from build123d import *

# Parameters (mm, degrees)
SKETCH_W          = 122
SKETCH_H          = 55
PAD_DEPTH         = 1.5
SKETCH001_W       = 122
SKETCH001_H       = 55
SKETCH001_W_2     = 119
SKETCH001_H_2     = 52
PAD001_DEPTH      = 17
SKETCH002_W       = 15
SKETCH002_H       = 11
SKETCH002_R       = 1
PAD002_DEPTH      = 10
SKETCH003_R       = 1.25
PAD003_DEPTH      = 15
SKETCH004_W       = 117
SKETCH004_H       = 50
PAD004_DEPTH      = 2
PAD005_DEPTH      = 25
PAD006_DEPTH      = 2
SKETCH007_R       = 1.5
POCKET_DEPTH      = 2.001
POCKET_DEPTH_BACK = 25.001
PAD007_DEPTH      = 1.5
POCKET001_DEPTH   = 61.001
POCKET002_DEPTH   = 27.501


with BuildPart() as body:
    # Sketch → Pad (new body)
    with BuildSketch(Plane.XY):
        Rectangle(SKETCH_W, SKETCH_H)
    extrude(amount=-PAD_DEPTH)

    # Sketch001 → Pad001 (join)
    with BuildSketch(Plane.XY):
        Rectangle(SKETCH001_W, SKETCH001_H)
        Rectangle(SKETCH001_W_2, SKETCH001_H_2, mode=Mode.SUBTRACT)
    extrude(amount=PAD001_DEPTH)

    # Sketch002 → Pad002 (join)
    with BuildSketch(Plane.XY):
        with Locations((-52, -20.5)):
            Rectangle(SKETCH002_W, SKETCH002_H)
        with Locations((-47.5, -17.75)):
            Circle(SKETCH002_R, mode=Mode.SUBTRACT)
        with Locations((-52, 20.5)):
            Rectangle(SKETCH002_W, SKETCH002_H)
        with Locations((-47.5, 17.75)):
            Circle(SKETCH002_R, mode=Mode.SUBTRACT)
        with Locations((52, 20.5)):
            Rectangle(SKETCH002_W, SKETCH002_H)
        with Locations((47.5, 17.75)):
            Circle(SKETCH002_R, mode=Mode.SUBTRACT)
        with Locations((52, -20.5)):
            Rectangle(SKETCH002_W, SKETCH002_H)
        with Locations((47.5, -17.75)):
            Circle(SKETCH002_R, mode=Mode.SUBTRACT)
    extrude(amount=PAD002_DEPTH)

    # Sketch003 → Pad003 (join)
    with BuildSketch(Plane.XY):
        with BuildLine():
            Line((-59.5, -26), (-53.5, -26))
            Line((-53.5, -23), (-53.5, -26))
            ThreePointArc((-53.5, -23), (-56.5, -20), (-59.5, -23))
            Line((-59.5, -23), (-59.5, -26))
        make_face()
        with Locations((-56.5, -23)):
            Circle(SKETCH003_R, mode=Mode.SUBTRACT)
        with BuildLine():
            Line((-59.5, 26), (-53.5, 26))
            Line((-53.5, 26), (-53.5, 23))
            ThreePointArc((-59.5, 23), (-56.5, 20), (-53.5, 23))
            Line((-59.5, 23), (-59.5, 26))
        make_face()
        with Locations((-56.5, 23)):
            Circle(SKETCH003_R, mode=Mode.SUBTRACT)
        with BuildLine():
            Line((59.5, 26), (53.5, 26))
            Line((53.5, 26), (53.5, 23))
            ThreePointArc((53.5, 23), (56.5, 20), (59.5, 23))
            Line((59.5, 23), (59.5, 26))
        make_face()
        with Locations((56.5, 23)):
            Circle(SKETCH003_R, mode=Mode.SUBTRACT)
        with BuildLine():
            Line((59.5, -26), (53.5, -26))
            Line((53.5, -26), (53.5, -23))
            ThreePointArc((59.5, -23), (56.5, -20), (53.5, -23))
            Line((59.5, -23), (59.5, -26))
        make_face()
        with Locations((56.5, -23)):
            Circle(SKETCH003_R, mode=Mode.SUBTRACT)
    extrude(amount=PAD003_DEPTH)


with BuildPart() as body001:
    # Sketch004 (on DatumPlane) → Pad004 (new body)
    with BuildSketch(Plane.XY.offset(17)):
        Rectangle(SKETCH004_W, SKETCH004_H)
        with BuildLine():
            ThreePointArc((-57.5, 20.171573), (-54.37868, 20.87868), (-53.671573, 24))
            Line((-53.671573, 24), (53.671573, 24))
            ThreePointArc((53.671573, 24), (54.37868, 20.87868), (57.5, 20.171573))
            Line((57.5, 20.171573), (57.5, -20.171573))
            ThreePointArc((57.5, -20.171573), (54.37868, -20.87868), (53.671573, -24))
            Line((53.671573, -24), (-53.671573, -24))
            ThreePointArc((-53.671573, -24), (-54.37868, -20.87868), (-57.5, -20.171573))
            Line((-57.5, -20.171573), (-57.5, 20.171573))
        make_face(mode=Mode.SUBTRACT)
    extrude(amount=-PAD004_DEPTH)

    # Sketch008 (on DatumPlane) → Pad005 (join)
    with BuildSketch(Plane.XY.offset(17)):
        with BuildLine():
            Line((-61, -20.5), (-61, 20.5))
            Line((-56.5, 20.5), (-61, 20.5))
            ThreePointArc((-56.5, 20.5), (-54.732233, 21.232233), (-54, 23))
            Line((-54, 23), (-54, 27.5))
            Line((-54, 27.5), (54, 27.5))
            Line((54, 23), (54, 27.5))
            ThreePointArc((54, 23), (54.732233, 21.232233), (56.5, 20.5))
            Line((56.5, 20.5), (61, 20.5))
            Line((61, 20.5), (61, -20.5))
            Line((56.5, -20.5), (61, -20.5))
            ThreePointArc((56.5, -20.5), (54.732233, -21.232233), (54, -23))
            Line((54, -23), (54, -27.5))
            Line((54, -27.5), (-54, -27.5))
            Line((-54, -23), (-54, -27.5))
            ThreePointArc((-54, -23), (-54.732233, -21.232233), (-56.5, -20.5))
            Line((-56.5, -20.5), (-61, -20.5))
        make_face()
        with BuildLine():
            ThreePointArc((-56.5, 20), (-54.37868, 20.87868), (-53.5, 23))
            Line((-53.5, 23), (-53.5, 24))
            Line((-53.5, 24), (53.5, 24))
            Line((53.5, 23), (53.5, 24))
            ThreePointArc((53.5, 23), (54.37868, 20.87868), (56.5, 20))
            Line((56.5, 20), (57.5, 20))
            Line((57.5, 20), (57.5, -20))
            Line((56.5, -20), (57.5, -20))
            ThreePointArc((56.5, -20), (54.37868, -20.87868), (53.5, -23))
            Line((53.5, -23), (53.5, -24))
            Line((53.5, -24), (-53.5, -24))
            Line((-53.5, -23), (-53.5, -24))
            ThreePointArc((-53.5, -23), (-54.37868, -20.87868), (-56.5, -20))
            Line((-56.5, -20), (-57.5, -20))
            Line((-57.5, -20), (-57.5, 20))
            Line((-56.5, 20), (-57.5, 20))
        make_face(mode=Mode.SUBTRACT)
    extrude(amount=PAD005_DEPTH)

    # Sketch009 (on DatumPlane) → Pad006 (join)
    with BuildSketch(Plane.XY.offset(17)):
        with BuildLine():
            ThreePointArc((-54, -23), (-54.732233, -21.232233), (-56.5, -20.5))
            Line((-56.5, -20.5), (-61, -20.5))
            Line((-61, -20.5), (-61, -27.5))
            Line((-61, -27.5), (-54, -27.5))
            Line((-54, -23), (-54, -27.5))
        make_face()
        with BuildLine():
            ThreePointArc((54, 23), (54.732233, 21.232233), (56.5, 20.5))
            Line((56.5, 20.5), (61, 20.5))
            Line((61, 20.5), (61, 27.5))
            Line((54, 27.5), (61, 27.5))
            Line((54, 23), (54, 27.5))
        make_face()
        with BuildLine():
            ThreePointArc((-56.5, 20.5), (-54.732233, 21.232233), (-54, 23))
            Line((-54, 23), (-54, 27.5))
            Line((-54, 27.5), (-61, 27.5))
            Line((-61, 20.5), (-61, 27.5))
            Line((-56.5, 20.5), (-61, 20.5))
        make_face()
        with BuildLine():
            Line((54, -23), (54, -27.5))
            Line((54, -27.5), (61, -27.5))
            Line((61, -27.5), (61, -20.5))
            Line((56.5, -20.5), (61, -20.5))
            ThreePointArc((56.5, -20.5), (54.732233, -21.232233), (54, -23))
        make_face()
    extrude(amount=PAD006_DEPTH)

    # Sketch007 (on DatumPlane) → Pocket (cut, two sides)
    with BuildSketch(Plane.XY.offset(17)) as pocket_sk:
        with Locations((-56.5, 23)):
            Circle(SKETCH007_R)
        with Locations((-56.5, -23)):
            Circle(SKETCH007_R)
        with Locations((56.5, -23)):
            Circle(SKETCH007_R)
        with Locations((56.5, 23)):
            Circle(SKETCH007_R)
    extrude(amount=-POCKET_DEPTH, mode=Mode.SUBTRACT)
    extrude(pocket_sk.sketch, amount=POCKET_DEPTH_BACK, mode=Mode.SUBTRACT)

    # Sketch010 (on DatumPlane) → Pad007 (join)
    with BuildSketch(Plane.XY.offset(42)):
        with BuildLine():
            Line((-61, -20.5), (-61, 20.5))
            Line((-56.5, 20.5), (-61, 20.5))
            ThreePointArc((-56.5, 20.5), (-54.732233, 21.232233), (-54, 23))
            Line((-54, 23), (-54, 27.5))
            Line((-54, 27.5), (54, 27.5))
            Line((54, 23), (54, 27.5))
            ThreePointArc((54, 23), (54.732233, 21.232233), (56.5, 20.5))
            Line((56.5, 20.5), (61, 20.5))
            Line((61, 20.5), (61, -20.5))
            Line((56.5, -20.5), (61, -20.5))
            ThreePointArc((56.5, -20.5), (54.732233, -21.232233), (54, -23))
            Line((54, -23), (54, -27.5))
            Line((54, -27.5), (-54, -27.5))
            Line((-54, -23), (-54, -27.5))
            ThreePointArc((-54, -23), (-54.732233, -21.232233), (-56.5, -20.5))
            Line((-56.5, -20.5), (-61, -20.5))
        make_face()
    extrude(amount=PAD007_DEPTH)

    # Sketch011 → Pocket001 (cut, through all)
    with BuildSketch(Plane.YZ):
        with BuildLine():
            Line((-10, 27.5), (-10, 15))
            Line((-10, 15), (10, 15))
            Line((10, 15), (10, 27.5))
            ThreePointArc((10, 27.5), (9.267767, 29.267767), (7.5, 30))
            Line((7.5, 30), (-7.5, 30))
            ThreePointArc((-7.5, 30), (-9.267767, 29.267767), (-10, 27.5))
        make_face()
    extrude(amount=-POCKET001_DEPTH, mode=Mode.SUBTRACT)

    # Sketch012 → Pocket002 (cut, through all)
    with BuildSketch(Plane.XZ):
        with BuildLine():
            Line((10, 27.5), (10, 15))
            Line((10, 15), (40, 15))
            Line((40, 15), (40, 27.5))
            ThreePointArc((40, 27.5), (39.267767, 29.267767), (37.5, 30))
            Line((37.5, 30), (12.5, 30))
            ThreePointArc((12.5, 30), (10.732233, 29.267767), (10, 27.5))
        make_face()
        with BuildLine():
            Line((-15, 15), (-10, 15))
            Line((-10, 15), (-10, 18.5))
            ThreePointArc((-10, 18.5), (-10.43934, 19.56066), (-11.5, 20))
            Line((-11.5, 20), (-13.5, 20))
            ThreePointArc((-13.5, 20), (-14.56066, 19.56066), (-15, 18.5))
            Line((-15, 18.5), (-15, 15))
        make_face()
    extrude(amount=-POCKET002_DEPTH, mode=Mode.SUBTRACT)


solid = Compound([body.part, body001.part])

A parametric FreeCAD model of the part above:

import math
import FreeCAD as App
import Part
import Sketcher
from FreeCAD import Vector

doc = App.newDocument("Part")
body = doc.addObject("PartDesign::Body", "Body")

# Sketch on XY plane
sketch1 = body.newObject("Sketcher::SketchObject", "Sketch")
sketch1.AttachmentSupport = (doc.getObject("XY_Plane"), [""])
sketch1.MapMode = "FlatFace"
sketch1.addGeometry([
    Part.LineSegment(Vector(-61, 27.5, 0), Vector(-61, -27.5, 0)),
    Part.LineSegment(Vector(-61, -27.5, 0), Vector(61, -27.5, 0)),
    Part.LineSegment(Vector(61, -27.5, 0), Vector(61, 27.5, 0)),
    Part.LineSegment(Vector(61, 27.5, 0), Vector(-61, 27.5, 0)),
], False)
sketch1.addConstraint([
    Sketcher.Constraint("Coincident", 0, 2, 1, 1),
    Sketcher.Constraint("Coincident", 1, 2, 2, 1),
    Sketcher.Constraint("Coincident", 2, 2, 3, 1),
    Sketcher.Constraint("Coincident", 3, 2, 0, 1),
    Sketcher.Constraint("Vertical", 0),
    Sketcher.Constraint("Horizontal", 1),
    Sketcher.Constraint("Vertical", 2),
    Sketcher.Constraint("Horizontal", 3),
    Sketcher.Constraint("Symmetric", 0, 2, 2, 2, -1, 1),
    Sketcher.Constraint("DistanceX", 1, 1, 1, 2, 122.0),
    Sketcher.Constraint("DistanceY", 0, 2, 0, 1, 55.0),
])
pad1 = body.newObject("PartDesign::Pad", "Pad")
pad1.Profile = sketch1
pad1.Length = 1.5
pad1.Reversed = True

# Sketch on XY plane
sketch2 = body.newObject("Sketcher::SketchObject", "Sketch001")
sketch2.AttachmentSupport = (doc.getObject("XY_Plane"), [""])
sketch2.MapMode = "FlatFace"
sketch2.addGeometry([
    Part.LineSegment(Vector(-61, 27.5, 0), Vector(-61, -27.5, 0)),  # 0
    Part.LineSegment(Vector(-61, -27.5, 0), Vector(61, -27.5, 0)),  # 1
    Part.LineSegment(Vector(61, -27.5, 0), Vector(61, 27.5, 0)),  # 2
    Part.LineSegment(Vector(61, 27.5, 0), Vector(-61, 27.5, 0)),  # 3
    Part.LineSegment(Vector(59.5, -26, 0), Vector(-59.5, -26, 0)),  # 4
    Part.LineSegment(Vector(-59.5, -26, 0), Vector(-59.5, 26, 0)),  # 5
    Part.LineSegment(Vector(-59.5, 26, 0), Vector(59.5, 26, 0)),  # 6
    Part.LineSegment(Vector(59.5, 26, 0), Vector(59.5, -26, 0)),  # 7
], False)
sketch2.addConstraint([
    Sketcher.Constraint("Coincident", 0, 2, 1, 1),
    Sketcher.Constraint("Coincident", 1, 2, 2, 1),
    Sketcher.Constraint("Coincident", 2, 2, 3, 1),
    Sketcher.Constraint("Coincident", 3, 2, 0, 1),
    Sketcher.Constraint("Coincident", 4, 2, 5, 1),
    Sketcher.Constraint("Coincident", 5, 2, 6, 1),
    Sketcher.Constraint("Coincident", 6, 2, 7, 1),
    Sketcher.Constraint("Coincident", 7, 2, 4, 1),
    Sketcher.Constraint("Vertical", 0),
    Sketcher.Constraint("Horizontal", 1),
    Sketcher.Constraint("Vertical", 2),
    Sketcher.Constraint("Horizontal", 3),
    Sketcher.Constraint("Horizontal", 4),
    Sketcher.Constraint("Vertical", 5),
    Sketcher.Constraint("Horizontal", 6),
    Sketcher.Constraint("Vertical", 7),
    Sketcher.Constraint("Symmetric", 0, 2, 2, 2, -1, 1),
    Sketcher.Constraint("Symmetric", 4, 2, 6, 2, -1, 1),
    Sketcher.Constraint("DistanceX", 1, 1, 1, 2, 122.0),
    Sketcher.Constraint("DistanceX", 4, 2, 4, 1, 119.0),
    Sketcher.Constraint("DistanceY", 0, 2, 0, 1, 55.0),
    Sketcher.Constraint("DistanceY", 5, 1, 5, 2, 52.0),
])
pad2 = body.newObject("PartDesign::Pad", "Pad001")
pad2.Profile = sketch2
pad2.Length = 17

# Sketch on XY plane
sketch3 = body.newObject("Sketcher::SketchObject", "Sketch002")
sketch3.AttachmentSupport = (doc.getObject("XY_Plane"), [""])
sketch3.MapMode = "FlatFace"
sketch3.addGeometry([
    Part.LineSegment(Vector(-59.5, -15, 0), Vector(-59.5, -26, 0)),  # 0
    Part.LineSegment(Vector(-59.5, -26, 0), Vector(-44.5, -26, 0)),  # 1
    Part.LineSegment(Vector(-44.5, -26, 0), Vector(-44.5, -15, 0)),  # 2
    Part.LineSegment(Vector(-44.5, -15, 0), Vector(-59.5, -15, 0)),  # 3
    Part.Circle(Vector(-47.5, -17.75, 0), Vector(0, 0, 1), 1),  # 4
    Part.LineSegment(Vector(-59.5, 26, 0), Vector(-59.5, 15, 0)),  # 5
    Part.LineSegment(Vector(-59.5, 15, 0), Vector(-44.5, 15, 0)),  # 6
    Part.LineSegment(Vector(-44.5, 15, 0), Vector(-44.5, 26, 0)),  # 7
    Part.LineSegment(Vector(-44.5, 26, 0), Vector(-59.5, 26, 0)),  # 8
    Part.Circle(Vector(-47.5, 17.75, 0), Vector(0, 0, 1), 1),  # 9
    Part.LineSegment(Vector(44.5, 26, 0), Vector(44.5, 15, 0)),  # 10
    Part.LineSegment(Vector(44.5, 15, 0), Vector(59.5, 15, 0)),  # 11
    Part.LineSegment(Vector(59.5, 15, 0), Vector(59.5, 26, 0)),  # 12
    Part.LineSegment(Vector(59.5, 26, 0), Vector(44.5, 26, 0)),  # 13
    Part.Circle(Vector(47.5, 17.75, 0), Vector(0, 0, 1), 1),  # 14
    Part.LineSegment(Vector(44.5, -15, 0), Vector(44.5, -26, 0)),  # 15
    Part.LineSegment(Vector(44.5, -26, 0), Vector(59.5, -26, 0)),  # 16
    Part.LineSegment(Vector(59.5, -26, 0), Vector(59.5, -15, 0)),  # 17
    Part.LineSegment(Vector(59.5, -15, 0), Vector(44.5, -15, 0)),  # 18
    Part.Circle(Vector(47.5, -17.75, 0), Vector(0, 0, 1), 1),  # 19
], False)
sketch3.addConstraint([
    Sketcher.Constraint("Coincident", 0, 2, 1, 1),
    Sketcher.Constraint("Coincident", 1, 2, 2, 1),
    Sketcher.Constraint("Coincident", 2, 2, 3, 1),
    Sketcher.Constraint("Coincident", 3, 2, 0, 1),
    Sketcher.Constraint("Coincident", 5, 2, 6, 1),
    Sketcher.Constraint("Coincident", 6, 2, 7, 1),
    Sketcher.Constraint("Coincident", 7, 2, 8, 1),
    Sketcher.Constraint("Coincident", 8, 2, 5, 1),
    Sketcher.Constraint("Coincident", 10, 2, 11, 1),
    Sketcher.Constraint("Coincident", 11, 2, 12, 1),
    Sketcher.Constraint("Coincident", 12, 2, 13, 1),
    Sketcher.Constraint("Coincident", 13, 2, 10, 1),
    Sketcher.Constraint("Coincident", 15, 2, 16, 1),
    Sketcher.Constraint("Coincident", 16, 2, 17, 1),
    Sketcher.Constraint("Coincident", 17, 2, 18, 1),
    Sketcher.Constraint("Coincident", 18, 2, 15, 1),
    Sketcher.Constraint("Vertical", 0),
    Sketcher.Constraint("Horizontal", 1),
    Sketcher.Constraint("Vertical", 2),
    Sketcher.Constraint("Horizontal", 3),
    Sketcher.Constraint("Vertical", 5),
    Sketcher.Constraint("Horizontal", 6),
    Sketcher.Constraint("Vertical", 7),
    Sketcher.Constraint("Horizontal", 8),
    Sketcher.Constraint("Vertical", 10),
    Sketcher.Constraint("Horizontal", 11),
    Sketcher.Constraint("Vertical", 12),
    Sketcher.Constraint("Horizontal", 13),
    Sketcher.Constraint("Vertical", 15),
    Sketcher.Constraint("Horizontal", 16),
    Sketcher.Constraint("Vertical", 17),
    Sketcher.Constraint("Horizontal", 18),
    Sketcher.Constraint("Equal", 4, 9),
    Sketcher.Constraint("Equal", 9, 14),
    Sketcher.Constraint("Equal", 14, 19),
    Sketcher.Constraint("Symmetric", 4, 3, 14, 3, -1, 1),
    Sketcher.Constraint("Symmetric", 9, 3, 19, 3, -1, 1),
    Sketcher.Constraint("Symmetric", 2, 2, 10, 2, -1, 1),
    Sketcher.Constraint("Symmetric", 0, 2, 12, 2, -1, 1),
    Sketcher.Constraint("Symmetric", 7, 2, 15, 2, -1, 1),
    Sketcher.Constraint("Symmetric", 5, 2, 17, 2, -1, 1),
    Sketcher.Constraint("Symmetric", 9, 3, 14, 3, -2),
    Sketcher.Constraint("Symmetric", 6, 2, 10, 2, -2),
    Sketcher.Constraint("Symmetric", 8, 2, 12, 2, -2),
    Sketcher.Constraint("Diameter", 4, 2.0),
    Sketcher.Constraint("DistanceX", 1, 1, 1, 2, 15.0),
    Sketcher.Constraint("DistanceY", 0, 2, 0, 1, 11.0),
    Sketcher.Constraint("DistanceY", 0, 2, -1, 1, 26.0),
    Sketcher.Constraint("DistanceX", 9, 3, 14, 3, 95.0),
    Sketcher.Constraint("DistanceX", 0, 2, 4, 3, 12.0),
    Sketcher.Constraint("DistanceY", 4, 3, 9, 3, 35.5),
])
pad3 = body.newObject("PartDesign::Pad", "Pad002")
pad3.Profile = sketch3
pad3.Length = 10

# Sketch on XY plane
sketch4 = body.newObject("Sketcher::SketchObject", "Sketch003")
sketch4.AttachmentSupport = (doc.getObject("XY_Plane"), [""])
sketch4.MapMode = "FlatFace"
sketch4.addGeometry([
    Part.LineSegment(Vector(-59.5, -26, 0), Vector(-53.5, -26, 0)),  # 0
    Part.LineSegment(Vector(-53.5, -26, 0), Vector(-53.5, -23, 0)),  # 1
    Part.ArcOfCircle(Part.Circle(Vector(-56.5, -23, 0), Vector(0, 0, 1), 3), math.radians(0), math.radians(180)),  # 2
    Part.LineSegment(Vector(-59.5, -23, 0), Vector(-59.5, -26, 0)),  # 3
    Part.Circle(Vector(-56.5, -23, 0), Vector(0, 0, 1), 1.25),  # 4
    Part.LineSegment(Vector(-53.5, 26, 0), Vector(-59.5, 26, 0)),  # 5
    Part.LineSegment(Vector(-59.5, 26, 0), Vector(-59.5, 23, 0)),  # 6
    Part.ArcOfCircle(Part.Circle(Vector(-56.5, 23, 0), Vector(0, 0, 1), 3), math.radians(180), math.radians(360)),  # 7
    Part.LineSegment(Vector(-53.5, 23, 0), Vector(-53.5, 26, 0)),  # 8
    Part.Circle(Vector(-56.5, 23, 0), Vector(0, 0, 1), 1.25),  # 9
    Part.LineSegment(Vector(59.5, 26, 0), Vector(53.5, 26, 0)),  # 10
    Part.LineSegment(Vector(53.5, 26, 0), Vector(53.5, 23, 0)),  # 11
    Part.ArcOfCircle(Part.Circle(Vector(56.5, 23, 0), Vector(0, 0, 1), 3), math.radians(180), math.radians(360)),  # 12
    Part.LineSegment(Vector(59.5, 23, 0), Vector(59.5, 26, 0)),  # 13
    Part.Circle(Vector(56.5, 23, 0), Vector(0, 0, 1), 1.25),  # 14
    Part.LineSegment(Vector(53.5, -26, 0), Vector(59.5, -26, 0)),  # 15
    Part.LineSegment(Vector(59.5, -26, 0), Vector(59.5, -23, 0)),  # 16
    Part.ArcOfCircle(Part.Circle(Vector(56.5, -23, 0), Vector(0, 0, 1), 3), math.radians(0), math.radians(180)),  # 17
    Part.LineSegment(Vector(53.5, -23, 0), Vector(53.5, -26, 0)),  # 18
    Part.Circle(Vector(56.5, -23, 0), Vector(0, 0, 1), 1.25),  # 19
], False)
sketch4.addConstraint([
    Sketcher.Constraint("Coincident", 0, 2, 1, 1),
    Sketcher.Constraint("Tangent", 1, 2, 2, 1),
    Sketcher.Constraint("Tangent", 2, 2, 3, 1),
    Sketcher.Constraint("Coincident", 3, 2, 0, 1),
    Sketcher.Constraint("Coincident", 5, 2, 6, 1),
    Sketcher.Constraint("Tangent", 6, 2, 7, 1),
    Sketcher.Constraint("Tangent", 7, 2, 8, 1),
    Sketcher.Constraint("Coincident", 8, 2, 5, 1),
    Sketcher.Constraint("Coincident", 10, 2, 11, 1),
    Sketcher.Constraint("Tangent", 11, 2, 12, 1),
    Sketcher.Constraint("Tangent", 12, 2, 13, 1),
    Sketcher.Constraint("Coincident", 13, 2, 10, 1),
    Sketcher.Constraint("Coincident", 15, 2, 16, 1),
    Sketcher.Constraint("Tangent", 16, 2, 17, 1),
    Sketcher.Constraint("Tangent", 17, 2, 18, 1),
    Sketcher.Constraint("Coincident", 18, 2, 15, 1),
    Sketcher.Constraint("Horizontal", 0),
    Sketcher.Constraint("Vertical", 1),
    Sketcher.Constraint("Vertical", 3),
    Sketcher.Constraint("Horizontal", 5),
    Sketcher.Constraint("Vertical", 6),
    Sketcher.Constraint("Vertical", 8),
    Sketcher.Constraint("Horizontal", 10),
    Sketcher.Constraint("Vertical", 11),
    Sketcher.Constraint("Vertical", 13),
    Sketcher.Constraint("Horizontal", 15),
    Sketcher.Constraint("Vertical", 16),
    Sketcher.Constraint("Vertical", 18),
    Sketcher.Constraint("Coincident", 4, 3, 2, 3),
    Sketcher.Constraint("Coincident", 9, 3, 7, 3),
    Sketcher.Constraint("Coincident", 14, 3, 12, 3),
    Sketcher.Constraint("Coincident", 19, 3, 17, 3),
    Sketcher.Constraint("Equal", 2, 7),
    Sketcher.Constraint("Equal", 4, 9),
    Sketcher.Constraint("Equal", 7, 12),
    Sketcher.Constraint("Equal", 9, 14),
    Sketcher.Constraint("Equal", 12, 17),
    Sketcher.Constraint("Equal", 14, 19),
    Sketcher.Constraint("Symmetric", 2, 3, 12, 3, -1, 1),
    Sketcher.Constraint("Symmetric", 7, 3, 17, 3, -1, 1),
    Sketcher.Constraint("Symmetric", 7, 3, 12, 3, -2),
    Sketcher.Constraint("Horizontal", 8, 2, 10, 2),
    Sketcher.Constraint("Horizontal", 3, 2, 15, 2),
    Sketcher.Constraint("Equal", 3, 6),
    Sketcher.Constraint("Radius", 2, 3.0),
    Sketcher.Constraint("Diameter", 4, 2.5),
    Sketcher.Constraint("DistanceY", 1, 1, 1, 2, 3.0),
    Sketcher.Constraint("DistanceY", 2, 3, -1, 1, 23.0),
    Sketcher.Constraint("DistanceX", 7, 3, 12, 3, 113.0),
])
pad4 = body.newObject("PartDesign::Pad", "Pad003")
pad4.Profile = sketch4
pad4.Length = 15
body2 = doc.addObject("PartDesign::Body", "Body001")

# Sketch on XY plane
sketch5 = body2.newObject("Sketcher::SketchObject", "Sketch004")
sketch5.AttachmentSupport = (doc.getObject("XY_Plane001"), [""])
sketch5.MapMode = "FlatFace"
sketch5.AttachmentOffset = App.Placement(Vector(0, 0, 17), App.Rotation())
sketch5.addGeometry([
    Part.LineSegment(Vector(-58.5, 25, 0), Vector(-58.5, -25, 0)),  # 0
    Part.LineSegment(Vector(-58.5, -25, 0), Vector(58.5, -25, 0)),  # 1
    Part.LineSegment(Vector(58.5, -25, 0), Vector(58.5, 25, 0)),  # 2
    Part.LineSegment(Vector(58.5, 25, 0), Vector(-58.5, 25, 0)),  # 3
    Part.LineSegment(Vector(-57.5, -20.171573, 0), Vector(-57.5, 20.171573, 0)),  # 4
    Part.ArcOfCircle(Part.Circle(Vector(-56.5, 23, 0), Vector(0, 0, 1), 3), math.radians(-109.47121), math.radians(19.47121)),  # 5
    Part.LineSegment(Vector(-53.671573, 24, 0), Vector(53.671573, 24, 0)),  # 6
    Part.ArcOfCircle(Part.Circle(Vector(56.5, 23, 0), Vector(0, 0, 1), 3), math.radians(160.52879), math.radians(289.47121)),  # 7
    Part.LineSegment(Vector(57.5, 20.171573, 0), Vector(57.5, -20.171573, 0)),  # 8
    Part.ArcOfCircle(Part.Circle(Vector(56.5, -23, 0), Vector(0, 0, 1), 3), math.radians(70.52879), math.radians(199.47121)),  # 9
    Part.LineSegment(Vector(53.671573, -24, 0), Vector(-53.671573, -24, 0)),  # 10
    Part.ArcOfCircle(Part.Circle(Vector(-56.5, -23, 0), Vector(0, 0, 1), 3), math.radians(-19.47121), math.radians(109.47121)),  # 11
], False)
sketch5.addConstraint([
    Sketcher.Constraint("Coincident", 0, 2, 1, 1),
    Sketcher.Constraint("Coincident", 1, 2, 2, 1),
    Sketcher.Constraint("Coincident", 2, 2, 3, 1),
    Sketcher.Constraint("Coincident", 3, 2, 0, 1),
    Sketcher.Constraint("Coincident", 4, 2, 5, 1),
    Sketcher.Constraint("Coincident", 5, 2, 6, 1),
    Sketcher.Constraint("Coincident", 6, 2, 7, 1),
    Sketcher.Constraint("Coincident", 7, 2, 8, 1),
    Sketcher.Constraint("Coincident", 8, 2, 9, 1),
    Sketcher.Constraint("Coincident", 9, 2, 10, 1),
    Sketcher.Constraint("Coincident", 10, 2, 11, 1),
    Sketcher.Constraint("Coincident", 11, 2, 4, 1),
    Sketcher.Constraint("Vertical", 0),
    Sketcher.Constraint("Horizontal", 1),
    Sketcher.Constraint("Vertical", 2),
    Sketcher.Constraint("Horizontal", 3),
    Sketcher.Constraint("Vertical", 4),
    Sketcher.Constraint("Horizontal", 6),
    Sketcher.Constraint("Vertical", 8),
    Sketcher.Constraint("Horizontal", 10),
    Sketcher.Constraint("Equal", 5, 7),
    Sketcher.Constraint("Equal", 7, 9),
    Sketcher.Constraint("Equal", 9, 11),
    Sketcher.Constraint("Symmetric", 5, 3, 9, 3, -1, 1),
    Sketcher.Constraint("Symmetric", 7, 3, 11, 3, -1, 1),
    Sketcher.Constraint("Symmetric", 0, 2, 2, 2, -1, 1),
    Sketcher.Constraint("Symmetric", 5, 3, 7, 3, -2),
    Sketcher.Constraint("Horizontal", 4, 2, 7, 2),
    Sketcher.Constraint("Vertical", 6, 2, 9, 2),
    Sketcher.Constraint("Radius", 5, 3.0),
    Sketcher.Constraint("DistanceX", 1, 1, 1, 2, 117.0),
    Sketcher.Constraint("DistanceY", 0, 2, 0, 1, 50.0),
    Sketcher.Constraint("DistanceY", -1, 1, 5, 3, 23.0),
    Sketcher.Constraint("DistanceY", -1, 1, 5, 2, 24.0),
    Sketcher.Constraint("DistanceX", 5, 3, 7, 3, 113.000001),
    Sketcher.Constraint("DistanceX", 4, 2, 5, 3, 1.0),
])
pad5 = body2.newObject("PartDesign::Pad", "Pad004")
pad5.Profile = sketch5
pad5.Length = 2
pad5.Reversed = True

# Sketch on XY plane
sketch6 = body2.newObject("Sketcher::SketchObject", "Sketch005")
sketch6.AttachmentSupport = (doc.getObject("XY_Plane001"), [""])
sketch6.MapMode = "FlatFace"
sketch6.AttachmentOffset = App.Placement(Vector(0, 0, 17), App.Rotation())
sketch6.addGeometry([
    Part.LineSegment(Vector(-61, 20.5, 0), Vector(-61, -20.5, 0)),  # 0
    Part.LineSegment(Vector(-61, -20.5, 0), Vector(-56.5, -20.5, 0)),  # 1
    Part.ArcOfCircle(Part.Circle(Vector(-56.5, -23, 0), Vector(0, 0, 1), 2.5), math.radians(-0.000004), math.radians(90.000004)),  # 2
    Part.LineSegment(Vector(-54, -23, 0), Vector(-54, -27.5, 0)),  # 3
    Part.LineSegment(Vector(-54, -27.5, 0), Vector(54, -27.5, 0)),  # 4
    Part.LineSegment(Vector(54, -27.5, 0), Vector(54, -23, 0)),  # 5
    Part.ArcOfCircle(Part.Circle(Vector(56.5, -23, 0), Vector(0, 0, 1), 2.5), math.radians(89.999996), math.radians(180.000004)),  # 6
    Part.LineSegment(Vector(56.5, -20.5, 0), Vector(61, -20.5, 0)),  # 7
    Part.LineSegment(Vector(61, -20.5, 0), Vector(61, 20.5, 0)),  # 8
    Part.LineSegment(Vector(61, 20.5, 0), Vector(56.5, 20.5, 0)),  # 9
    Part.ArcOfCircle(Part.Circle(Vector(56.5, 23, 0), Vector(0, 0, 1), 2.5), math.radians(179.999996), math.radians(270.000004)),  # 10
    Part.LineSegment(Vector(54, 23, 0), Vector(54, 27.5, 0)),  # 11
    Part.LineSegment(Vector(54, 27.5, 0), Vector(-54, 27.5, 0)),  # 12
    Part.LineSegment(Vector(-54, 27.5, 0), Vector(-54, 23, 0)),  # 13
    Part.ArcOfCircle(Part.Circle(Vector(-56.5, 23, 0), Vector(0, 0, 1), 2.5), math.radians(-90.000004), math.radians(0.000004)),  # 14
    Part.LineSegment(Vector(-56.5, 20.5, 0), Vector(-61, 20.5, 0)),  # 15
    Part.ArcOfCircle(Part.Circle(Vector(-56.500001, 23.000001, 0), Vector(0, 0, 1), 3.000001), math.radians(-89.999978), math.radians(-0.000022)),  # 16
    Part.LineSegment(Vector(-53.5, 23, 0), Vector(-53.5, 24, 0)),  # 17
    Part.LineSegment(Vector(-53.5, 24, 0), Vector(53.5, 24, 0)),  # 18
    Part.LineSegment(Vector(53.5, 24, 0), Vector(53.5, 23, 0)),  # 19
    Part.ArcOfCircle(Part.Circle(Vector(56.500001, 23.000001, 0), Vector(0, 0, 1), 3.000001), math.radians(-179.999978), math.radians(-90.000022)),  # 20
    Part.LineSegment(Vector(56.5, 20, 0), Vector(57.5, 20, 0)),  # 21
    Part.LineSegment(Vector(57.5, 20, 0), Vector(57.5, -20, 0)),  # 22
    Part.LineSegment(Vector(57.5, -20, 0), Vector(56.5, -20, 0)),  # 23
    Part.ArcOfCircle(Part.Circle(Vector(56.500001, -23.000001, 0), Vector(0, 0, 1), 3.000001), math.radians(90.000022), math.radians(179.999978)),  # 24
    Part.LineSegment(Vector(53.5, -23, 0), Vector(53.5, -24, 0)),  # 25
    Part.LineSegment(Vector(53.5, -24, 0), Vector(-53.5, -24, 0)),  # 26
    Part.LineSegment(Vector(-53.5, -24, 0), Vector(-53.5, -23, 0)),  # 27
    Part.ArcOfCircle(Part.Circle(Vector(-56.500001, -23.000001, 0), Vector(0, 0, 1), 3.000001), math.radians(0.000022), math.radians(89.999978)),  # 28
    Part.LineSegment(Vector(-56.5, -20, 0), Vector(-57.5, -20, 0)),  # 29
    Part.LineSegment(Vector(-57.5, -20, 0), Vector(-57.5, 20, 0)),  # 30
    Part.LineSegment(Vector(-57.5, 20, 0), Vector(-56.5, 20, 0)),  # 31
], False)
sketch6.addConstraint([
    Sketcher.Constraint("Coincident", 0, 2, 1, 1),
    Sketcher.Constraint("Tangent", 1, 2, 2, 2),
    Sketcher.Constraint("Tangent", 2, 1, 3, 1),
    Sketcher.Constraint("Coincident", 3, 2, 4, 1),
    Sketcher.Constraint("Coincident", 4, 2, 5, 1),
    Sketcher.Constraint("Tangent", 5, 2, 6, 2),
    Sketcher.Constraint("Tangent", 6, 1, 7, 1),
    Sketcher.Constraint("Coincident", 7, 2, 8, 1),
    Sketcher.Constraint("Coincident", 8, 2, 9, 1),
    Sketcher.Constraint("Tangent", 9, 2, 10, 2),
    Sketcher.Constraint("Tangent", 10, 1, 11, 1),
    Sketcher.Constraint("Coincident", 11, 2, 12, 1),
    Sketcher.Constraint("Coincident", 12, 2, 13, 1),
    Sketcher.Constraint("Tangent", 13, 2, 14, 2),
    Sketcher.Constraint("Tangent", 14, 1, 15, 1),
    Sketcher.Constraint("Coincident", 15, 2, 0, 1),
    Sketcher.Constraint("Tangent", 16, 2, 17, 1),
    Sketcher.Constraint("Coincident", 17, 2, 18, 1),
    Sketcher.Constraint("Coincident", 18, 2, 19, 1),
    Sketcher.Constraint("Tangent", 19, 2, 20, 1),
    Sketcher.Constraint("Tangent", 20, 2, 21, 1),
    Sketcher.Constraint("Coincident", 21, 2, 22, 1),
    Sketcher.Constraint("Coincident", 22, 2, 23, 1),
    Sketcher.Constraint("Tangent", 23, 2, 24, 1),
    Sketcher.Constraint("Tangent", 24, 2, 25, 1),
    Sketcher.Constraint("Coincident", 25, 2, 26, 1),
    Sketcher.Constraint("Coincident", 26, 2, 27, 1),
    Sketcher.Constraint("Tangent", 27, 2, 28, 1),
    Sketcher.Constraint("Tangent", 28, 2, 29, 1),
    Sketcher.Constraint("Coincident", 29, 2, 30, 1),
    Sketcher.Constraint("Coincident", 30, 2, 31, 1),
    Sketcher.Constraint("Tangent", 31, 2, 16, 1),
    Sketcher.Constraint("Vertical", 0),
    Sketcher.Constraint("Horizontal", 1),
    Sketcher.Constraint("Vertical", 3),
    Sketcher.Constraint("Horizontal", 4),
    Sketcher.Constraint("Vertical", 5),
    Sketcher.Constraint("Horizontal", 7),
    Sketcher.Constraint("Vertical", 8),
    Sketcher.Constraint("Horizontal", 9),
    Sketcher.Constraint("Vertical", 11),
    Sketcher.Constraint("Horizontal", 12),
    Sketcher.Constraint("Vertical", 13),
    Sketcher.Constraint("Horizontal", 15),
    Sketcher.Constraint("Vertical", 17),
    Sketcher.Constraint("Horizontal", 18),
    Sketcher.Constraint("Vertical", 19),
    Sketcher.Constraint("Horizontal", 21),
    Sketcher.Constraint("Vertical", 22),
    Sketcher.Constraint("Horizontal", 23),
    Sketcher.Constraint("Vertical", 25),
    Sketcher.Constraint("Horizontal", 26),
    Sketcher.Constraint("Vertical", 27),
    Sketcher.Constraint("Horizontal", 29),
    Sketcher.Constraint("Vertical", 30),
    Sketcher.Constraint("Horizontal", 31),
    Sketcher.Constraint("Coincident", 16, 3, 14, 3),
    Sketcher.Constraint("Coincident", 20, 3, 10, 3),
    Sketcher.Constraint("Coincident", 24, 3, 6, 3),
    Sketcher.Constraint("Coincident", 28, 3, 2, 3),
    Sketcher.Constraint("Equal", 2, 6),
    Sketcher.Constraint("Equal", 6, 10),
    Sketcher.Constraint("Equal", 10, 14),
    Sketcher.Constraint("Equal", 16, 20),
    Sketcher.Constraint("Equal", 20, 24),
    Sketcher.Constraint("Equal", 24, 28),
    Sketcher.Constraint("Symmetric", 2, 3, 10, 3, -1, 1),
    Sketcher.Constraint("Symmetric", 6, 3, 14, 3, -1, 1),
    Sketcher.Constraint("Symmetric", 2, 3, 6, 3, -2),
    Sketcher.Constraint("Equal", 1, 7),
    Sketcher.Constraint("Equal", 23, 29),
    Sketcher.Constraint("Equal", 15, 3),
    Sketcher.Constraint("Equal", 5, 11),
    Sketcher.Constraint("Equal", 31, 17),
    Sketcher.Constraint("Equal", 19, 25),
    Sketcher.Constraint("Radius", 16, 3.000001),
    Sketcher.Constraint("Radius", 2, 2.5),
    Sketcher.Constraint("DistanceX", 4, 1, 4, 2, 108.0),
    Sketcher.Constraint("DistanceX", 21, 1, 21, 2, 1.0),
    Sketcher.Constraint("DistanceY", 0, 2, 0, 1, 41.0),
    Sketcher.Constraint("DistanceX", 1, 1, 1, 2, 4.5),
])
pad6 = body2.newObject("PartDesign::Pad", "Pad005")
pad6.Profile = sketch6
pad6.Length = 25

# Sketch on XY plane
sketch7 = body2.newObject("Sketcher::SketchObject", "Sketch006")
sketch7.AttachmentSupport = (doc.getObject("XY_Plane001"), [""])
sketch7.MapMode = "FlatFace"
sketch7.AttachmentOffset = App.Placement(Vector(0, 0, 17), App.Rotation())
sketch7.addGeometry([
    Part.ArcOfCircle(Part.Circle(Vector(-56.5, -23, 0), Vector(0, 0, 1), 2.5), math.radians(-0.000004), math.radians(90.000004)),  # 0
    Part.LineSegment(Vector(-56.5, -20.5, 0), Vector(-61, -20.5, 0)),  # 1
    Part.LineSegment(Vector(-61, -20.5, 0), Vector(-61, -27.5, 0)),  # 2
    Part.LineSegment(Vector(-61, -27.5, 0), Vector(-54, -27.5, 0)),  # 3
    Part.LineSegment(Vector(-54, -27.5, 0), Vector(-54, -23, 0)),  # 4
    Part.ArcOfCircle(Part.Circle(Vector(56.5, 23, 0), Vector(0, 0, 1), 2.5), math.radians(179.999996), math.radians(270.000004)),  # 5
    Part.LineSegment(Vector(56.5, 20.5, 0), Vector(61, 20.5, 0)),  # 6
    Part.LineSegment(Vector(61, 20.5, 0), Vector(61, 27.5, 0)),  # 7
    Part.LineSegment(Vector(61, 27.5, 0), Vector(54, 27.5, 0)),  # 8
    Part.LineSegment(Vector(54, 27.5, 0), Vector(54, 23, 0)),  # 9
    Part.ArcOfCircle(Part.Circle(Vector(-56.5, 23, 0), Vector(0, 0, 1), 2.5), math.radians(-90.000004), math.radians(0.000004)),  # 10
    Part.LineSegment(Vector(-54, 23, 0), Vector(-54, 27.5, 0)),  # 11
    Part.LineSegment(Vector(-54, 27.5, 0), Vector(-61, 27.5, 0)),  # 12
    Part.LineSegment(Vector(-61, 27.5, 0), Vector(-61, 20.5, 0)),  # 13
    Part.LineSegment(Vector(-61, 20.5, 0), Vector(-56.5, 20.5, 0)),  # 14
    Part.LineSegment(Vector(54, -23, 0), Vector(54, -27.5, 0)),  # 15
    Part.LineSegment(Vector(54, -27.5, 0), Vector(61, -27.5, 0)),  # 16
    Part.LineSegment(Vector(61, -27.5, 0), Vector(61, -20.5, 0)),  # 17
    Part.LineSegment(Vector(61, -20.5, 0), Vector(56.5, -20.5, 0)),  # 18
    Part.ArcOfCircle(Part.Circle(Vector(56.5, -23, 0), Vector(0, 0, 1), 2.5), math.radians(89.999996), math.radians(180.000004)),  # 19
], False)
sketch7.addConstraint([
    Sketcher.Constraint("Tangent", 0, 2, 1, 1),
    Sketcher.Constraint("Coincident", 1, 2, 2, 1),
    Sketcher.Constraint("Coincident", 2, 2, 3, 1),
    Sketcher.Constraint("Coincident", 3, 2, 4, 1),
    Sketcher.Constraint("Tangent", 4, 2, 0, 1),
    Sketcher.Constraint("Tangent", 5, 2, 6, 1),
    Sketcher.Constraint("Coincident", 6, 2, 7, 1),
    Sketcher.Constraint("Coincident", 7, 2, 8, 1),
    Sketcher.Constraint("Coincident", 8, 2, 9, 1),
    Sketcher.Constraint("Tangent", 9, 2, 5, 1),
    Sketcher.Constraint("Tangent", 10, 2, 11, 1),
    Sketcher.Constraint("Coincident", 11, 2, 12, 1),
    Sketcher.Constraint("Coincident", 12, 2, 13, 1),
    Sketcher.Constraint("Coincident", 13, 2, 14, 1),
    Sketcher.Constraint("Tangent", 14, 2, 10, 1),
    Sketcher.Constraint("Coincident", 15, 2, 16, 1),
    Sketcher.Constraint("Coincident", 16, 2, 17, 1),
    Sketcher.Constraint("Coincident", 17, 2, 18, 1),
    Sketcher.Constraint("Tangent", 18, 2, 19, 1),
    Sketcher.Constraint("Tangent", 19, 2, 15, 1),
    Sketcher.Constraint("Horizontal", 1),
    Sketcher.Constraint("Vertical", 2),
    Sketcher.Constraint("Horizontal", 3),
    Sketcher.Constraint("Vertical", 4),
    Sketcher.Constraint("Horizontal", 6),
    Sketcher.Constraint("Vertical", 7),
    Sketcher.Constraint("Horizontal", 8),
    Sketcher.Constraint("Vertical", 9),
    Sketcher.Constraint("Vertical", 11),
    Sketcher.Constraint("Horizontal", 12),
    Sketcher.Constraint("Vertical", 13),
    Sketcher.Constraint("Horizontal", 14),
    Sketcher.Constraint("Vertical", 15),
    Sketcher.Constraint("Horizontal", 16),
    Sketcher.Constraint("Vertical", 17),
    Sketcher.Constraint("Horizontal", 18),
    Sketcher.Constraint("Equal", 0, 5),
    Sketcher.Constraint("Equal", 5, 10),
    Sketcher.Constraint("Equal", 10, 19),
    Sketcher.Constraint("Symmetric", 0, 3, 5, 3, -1, 1),
    Sketcher.Constraint("Symmetric", 10, 3, 19, 3, -1, 1),
    Sketcher.Constraint("Symmetric", 2, 2, 7, 2, -1, 1),
    Sketcher.Constraint("Symmetric", 12, 2, 16, 2, -1, 1),
    Sketcher.Constraint("Symmetric", 5, 3, 10, 3, -2),
    Sketcher.Constraint("Symmetric", 7, 2, 12, 2, -2),
    Sketcher.Constraint("Equal", 16, 2),
    Sketcher.Constraint("Radius", 0, 2.5),
    Sketcher.Constraint("DistanceX", 3, 1, 3, 2, 7.0),
    Sketcher.Constraint("DistanceY", 0, 3, -1, 1, 23.0),
    Sketcher.Constraint("DistanceX", 1, 2, -1, 1, 61.0),
])
pad7 = body2.newObject("PartDesign::Pad", "Pad006")
pad7.Profile = sketch7
pad7.Length = 2

# Sketch on XY plane
sketch8 = body2.newObject("Sketcher::SketchObject", "Sketch007")
sketch8.AttachmentSupport = (doc.getObject("XY_Plane001"), [""])
sketch8.MapMode = "FlatFace"
sketch8.AttachmentOffset = App.Placement(Vector(0, 0, 17), App.Rotation())
sketch8.addGeometry([
    Part.Circle(Vector(-56.5, 23, 0), Vector(0, 0, 1), 1.5),
    Part.Circle(Vector(-56.5, -23, 0), Vector(0, 0, 1), 1.5),
    Part.Circle(Vector(56.5, -23, 0), Vector(0, 0, 1), 1.5),
    Part.Circle(Vector(56.5, 23, 0), Vector(0, 0, 1), 1.5),
], False)
sketch8.addConstraint([
    Sketcher.Constraint("Equal", 0, 1),
    Sketcher.Constraint("Equal", 1, 2),
    Sketcher.Constraint("Equal", 2, 3),
    Sketcher.Constraint("Symmetric", 0, 3, 2, 3, -1, 1),
    Sketcher.Constraint("Symmetric", 1, 3, 3, 3, -1, 1),
    Sketcher.Constraint("Symmetric", 1, 3, 2, 3, -2),
    Sketcher.Constraint("Diameter", 0, 3.0),
    Sketcher.Constraint("DistanceY", -1, 1, 0, 3, 23.0),
    Sketcher.Constraint("DistanceX", 1, 3, 2, 3, 113.0),
])
pocket1 = body2.newObject("PartDesign::Pocket", "Pocket")
pocket1.Profile = sketch8
pocket1.Type = "ThroughAll"
pocket1.Midplane = True

# Sketch on XY plane
sketch9 = body2.newObject("Sketcher::SketchObject", "Sketch008")
sketch9.AttachmentSupport = (doc.getObject("XY_Plane001"), [""])
sketch9.MapMode = "FlatFace"
sketch9.AttachmentOffset = App.Placement(Vector(0, 0, 42), App.Rotation())
sketch9.addGeometry([
    Part.LineSegment(Vector(-61, 20.5, 0), Vector(-61, -20.5, 0)),  # 0
    Part.LineSegment(Vector(-61, -20.5, 0), Vector(-56.5, -20.5, 0)),  # 1
    Part.ArcOfCircle(Part.Circle(Vector(-56.5, -23, 0), Vector(0, 0, 1), 2.5), math.radians(-0.000004), math.radians(90.000004)),  # 2
    Part.LineSegment(Vector(-54, -23, 0), Vector(-54, -27.5, 0)),  # 3
    Part.LineSegment(Vector(-54, -27.5, 0), Vector(54, -27.5, 0)),  # 4
    Part.LineSegment(Vector(54, -27.5, 0), Vector(54, -23, 0)),  # 5
    Part.ArcOfCircle(Part.Circle(Vector(56.5, -23, 0), Vector(0, 0, 1), 2.5), math.radians(89.999996), math.radians(180.000004)),  # 6
    Part.LineSegment(Vector(56.5, -20.5, 0), Vector(61, -20.5, 0)),  # 7
    Part.LineSegment(Vector(61, -20.5, 0), Vector(61, 20.5, 0)),  # 8
    Part.LineSegment(Vector(61, 20.5, 0), Vector(56.5, 20.5, 0)),  # 9
    Part.ArcOfCircle(Part.Circle(Vector(56.5, 23, 0), Vector(0, 0, 1), 2.5), math.radians(179.999996), math.radians(270.000004)),  # 10
    Part.LineSegment(Vector(54, 23, 0), Vector(54, 27.5, 0)),  # 11
    Part.LineSegment(Vector(54, 27.5, 0), Vector(-54, 27.5, 0)),  # 12
    Part.LineSegment(Vector(-54, 27.5, 0), Vector(-54, 23, 0)),  # 13
    Part.ArcOfCircle(Part.Circle(Vector(-56.5, 23, 0), Vector(0, 0, 1), 2.5), math.radians(-90.000004), math.radians(0.000004)),  # 14
    Part.LineSegment(Vector(-56.5, 20.5, 0), Vector(-61, 20.5, 0)),  # 15
], False)
sketch9.addConstraint([
    Sketcher.Constraint("Coincident", 0, 2, 1, 1),
    Sketcher.Constraint("Tangent", 1, 2, 2, 2),
    Sketcher.Constraint("Tangent", 2, 1, 3, 1),
    Sketcher.Constraint("Coincident", 3, 2, 4, 1),
    Sketcher.Constraint("Coincident", 4, 2, 5, 1),
    Sketcher.Constraint("Tangent", 5, 2, 6, 2),
    Sketcher.Constraint("Tangent", 6, 1, 7, 1),
    Sketcher.Constraint("Coincident", 7, 2, 8, 1),
    Sketcher.Constraint("Coincident", 8, 2, 9, 1),
    Sketcher.Constraint("Tangent", 9, 2, 10, 2),
    Sketcher.Constraint("Tangent", 10, 1, 11, 1),
    Sketcher.Constraint("Coincident", 11, 2, 12, 1),
    Sketcher.Constraint("Coincident", 12, 2, 13, 1),
    Sketcher.Constraint("Tangent", 13, 2, 14, 2),
    Sketcher.Constraint("Tangent", 14, 1, 15, 1),
    Sketcher.Constraint("Coincident", 15, 2, 0, 1),
    Sketcher.Constraint("Vertical", 0),
    Sketcher.Constraint("Horizontal", 1),
    Sketcher.Constraint("Vertical", 3),
    Sketcher.Constraint("Horizontal", 4),
    Sketcher.Constraint("Vertical", 5),
    Sketcher.Constraint("Horizontal", 7),
    Sketcher.Constraint("Vertical", 8),
    Sketcher.Constraint("Horizontal", 9),
    Sketcher.Constraint("Vertical", 11),
    Sketcher.Constraint("Horizontal", 12),
    Sketcher.Constraint("Vertical", 13),
    Sketcher.Constraint("Horizontal", 15),
    Sketcher.Constraint("Equal", 2, 6),
    Sketcher.Constraint("Equal", 6, 10),
    Sketcher.Constraint("Equal", 10, 14),
    Sketcher.Constraint("Symmetric", 2, 3, 10, 3, -1, 1),
    Sketcher.Constraint("Symmetric", 6, 3, 14, 3, -1, 1),
    Sketcher.Constraint("Symmetric", 2, 3, 6, 3, -2),
    Sketcher.Constraint("Equal", 1, 7),
    Sketcher.Constraint("Equal", 15, 3),
    Sketcher.Constraint("Equal", 5, 11),
    Sketcher.Constraint("Radius", 2, 2.5),
    Sketcher.Constraint("DistanceX", 4, 1, 4, 2, 108.0),
    Sketcher.Constraint("DistanceY", 0, 2, 0, 1, 41.0),
    Sketcher.Constraint("DistanceX", 1, 1, 1, 2, 4.5),
])
pad8 = body2.newObject("PartDesign::Pad", "Pad007")
pad8.Profile = sketch9
pad8.Length = 1.5

# Sketch on YZ plane
sketch10 = body2.newObject("Sketcher::SketchObject", "Sketch009")
sketch10.AttachmentSupport = (doc.getObject("YZ_Plane001"), [""])
sketch10.MapMode = "FlatFace"
sketch10.addGeometry([
    Part.LineSegment(Vector(-10, 27.5, 0), Vector(-10, 15, 0)),  # 0
    Part.LineSegment(Vector(-10, 15, 0), Vector(10, 15, 0)),  # 1
    Part.LineSegment(Vector(10, 15, 0), Vector(10, 27.5, 0)),  # 2
    Part.ArcOfCircle(Part.Circle(Vector(7.5, 27.5, 0), Vector(0, 0, 1), 2.5), math.radians(-0.000004), math.radians(90.000004)),  # 3
    Part.LineSegment(Vector(7.5, 30, 0), Vector(-7.5, 30, 0)),  # 4
    Part.ArcOfCircle(Part.Circle(Vector(-7.5, 27.5, 0), Vector(0, 0, 1), 2.5), math.radians(89.999996), math.radians(180.000004)),  # 5
], False)
sketch10.addConstraint([
    Sketcher.Constraint("Coincident", 0, 2, 1, 1),
    Sketcher.Constraint("Coincident", 1, 2, 2, 1),
    Sketcher.Constraint("Tangent", 2, 2, 3, 1),
    Sketcher.Constraint("Tangent", 3, 2, 4, 1),
    Sketcher.Constraint("Tangent", 4, 2, 5, 1),
    Sketcher.Constraint("Tangent", 5, 2, 0, 1),
    Sketcher.Constraint("Vertical", 0),
    Sketcher.Constraint("Horizontal", 1),
    Sketcher.Constraint("Vertical", 2),
    Sketcher.Constraint("Horizontal", 4),
    Sketcher.Constraint("Equal", 3, 5),
    Sketcher.Constraint("Radius", 3, 2.5),
    Sketcher.Constraint("DistanceX", 1, 1, 1, 2, 20.0),
    Sketcher.Constraint("DistanceY", 0, 2, 0, 1, 12.5),
    Sketcher.Constraint("DistanceX", 0, 2, -1, 1, 10.0),
    Sketcher.Constraint("DistanceY", -1, 1, 0, 2, 15.0),
])
pocket2 = body2.newObject("PartDesign::Pocket", "Pocket001")
pocket2.Profile = sketch10
pocket2.Type = "ThroughAll"

# Sketch on XZ plane
sketch11 = body2.newObject("Sketcher::SketchObject", "Sketch010")
sketch11.AttachmentSupport = (doc.getObject("XZ_Plane001"), [""])
sketch11.MapMode = "FlatFace"
sketch11.addGeometry([
    Part.LineSegment(Vector(10, 27.5, 0), Vector(10, 15, 0)),  # 0
    Part.LineSegment(Vector(10, 15, 0), Vector(40, 15, 0)),  # 1
    Part.LineSegment(Vector(40, 15, 0), Vector(40, 27.5, 0)),  # 2
    Part.ArcOfCircle(Part.Circle(Vector(37.5, 27.5, 0), Vector(0, 0, 1), 2.5), math.radians(-0.000004), math.radians(90.000004)),  # 3
    Part.LineSegment(Vector(37.5, 30, 0), Vector(12.5, 30, 0)),  # 4
    Part.ArcOfCircle(Part.Circle(Vector(12.5, 27.5, 0), Vector(0, 0, 1), 2.5), math.radians(89.999996), math.radians(180.000004)),  # 5
    Part.LineSegment(Vector(-15, 15, 0), Vector(-10, 15, 0)),  # 6
    Part.LineSegment(Vector(-10, 15, 0), Vector(-10, 18.5, 0)),  # 7
    Part.ArcOfCircle(Part.Circle(Vector(-11.500001, 18.499999, 0), Vector(0, 0, 1), 1.500001), math.radians(0.000022), math.radians(89.999978)),  # 8
    Part.LineSegment(Vector(-11.5, 20, 0), Vector(-13.5, 20, 0)),  # 9
    Part.ArcOfCircle(Part.Circle(Vector(-13.499999, 18.499999, 0), Vector(0, 0, 1), 1.500001), math.radians(90.000022), math.radians(179.999978)),  # 10
    Part.LineSegment(Vector(-15, 18.5, 0), Vector(-15, 15, 0)),  # 11
], False)
sketch11.addConstraint([
    Sketcher.Constraint("Coincident", 0, 2, 1, 1),
    Sketcher.Constraint("Coincident", 1, 2, 2, 1),
    Sketcher.Constraint("Tangent", 2, 2, 3, 1),
    Sketcher.Constraint("Tangent", 3, 2, 4, 1),
    Sketcher.Constraint("Tangent", 4, 2, 5, 1),
    Sketcher.Constraint("Tangent", 5, 2, 0, 1),
    Sketcher.Constraint("Coincident", 6, 2, 7, 1),
    Sketcher.Constraint("Tangent", 7, 2, 8, 1),
    Sketcher.Constraint("Tangent", 8, 2, 9, 1),
    Sketcher.Constraint("Tangent", 9, 2, 10, 1),
    Sketcher.Constraint("Tangent", 10, 2, 11, 1),
    Sketcher.Constraint("Coincident", 11, 2, 6, 1),
    Sketcher.Constraint("Vertical", 0),
    Sketcher.Constraint("Horizontal", 1),
    Sketcher.Constraint("Vertical", 2),
    Sketcher.Constraint("Horizontal", 4),
    Sketcher.Constraint("Horizontal", 6),
    Sketcher.Constraint("Vertical", 7),
    Sketcher.Constraint("Horizontal", 9),
    Sketcher.Constraint("Vertical", 11),
    Sketcher.Constraint("Equal", 3, 5),
    Sketcher.Constraint("Equal", 8, 10),
    Sketcher.Constraint("Symmetric", 0, 2, 6, 2, -2),
    Sketcher.Constraint("Radius", 3, 2.5),
    Sketcher.Constraint("Radius", 8, 1.500001),
    Sketcher.Constraint("DistanceX", 1, 1, 1, 2, 30.0),
    Sketcher.Constraint("DistanceX", 6, 1, 6, 2, 5.0),
    Sketcher.Constraint("DistanceY", 0, 2, 0, 1, 12.5),
    Sketcher.Constraint("DistanceY", 7, 1, 7, 2, 3.5),
    Sketcher.Constraint("DistanceX", -1, 1, 0, 2, 10.0),
    Sketcher.Constraint("DistanceY", -1, 1, 0, 2, 15.0),
])
pocket3 = body2.newObject("PartDesign::Pocket", "Pocket002")
pocket3.Profile = sketch11
pocket3.Type = "ThroughAll"

doc.recompute()
